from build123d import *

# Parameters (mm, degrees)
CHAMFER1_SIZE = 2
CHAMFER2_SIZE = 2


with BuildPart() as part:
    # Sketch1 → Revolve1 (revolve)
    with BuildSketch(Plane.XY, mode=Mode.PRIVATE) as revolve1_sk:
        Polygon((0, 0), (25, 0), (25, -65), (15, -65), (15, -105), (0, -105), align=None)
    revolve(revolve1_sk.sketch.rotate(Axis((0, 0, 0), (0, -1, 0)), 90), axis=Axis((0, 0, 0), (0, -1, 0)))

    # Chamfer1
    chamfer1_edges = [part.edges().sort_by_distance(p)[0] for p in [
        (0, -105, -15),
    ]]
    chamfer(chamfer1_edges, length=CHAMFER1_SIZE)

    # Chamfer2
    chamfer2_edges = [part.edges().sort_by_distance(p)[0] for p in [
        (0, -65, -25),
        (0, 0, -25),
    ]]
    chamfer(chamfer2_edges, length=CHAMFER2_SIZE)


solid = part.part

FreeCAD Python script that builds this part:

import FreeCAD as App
import Part
import Sketcher
from FreeCAD import Vector


def edges_at(feature, points):
    """Names of the edges that pass closest to the given points."""
    edges = feature.Shape.Edges
    near = lambda p: min(range(len(edges)), key=lambda i: edges[i].distToShape(Part.Vertex(*p))[0])
    return sorted({f"Edge{near(p) + 1}" for p in points})

doc = App.newDocument("Part")
params = doc.addObject("Spreadsheet::Sheet", "Params")
for row, (alias, value) in enumerate([
    ("sketch1_width", "25 mm"),
    ("sketch1_width2", "15 mm"),
    ("sketch1_height", "105 mm"),
    ("sketch1_height2", "40 mm"),
    ("revolution_angle", "360 deg"),
    ("chamfer_size", "2 mm"),
    ("chamfer2_size", "2 mm"),
], start=1):
    params.set(f"A{row}", alias)
    params.set(f"B{row}", "=" + value)
    params.setAlias(f"B{row}", alias)

body = doc.addObject("PartDesign::Body", "Body")

# Sketch on XY plane
sketch1 = body.newObject("Sketcher::SketchObject", "Sketch")
sketch1.AttachmentSupport = (doc.getObject("XY_Plane"), [""])
sketch1.MapMode = "FlatFace"
sketch1.addGeometry(Part.LineSegment(Vector(25, 0, 0), Vector(0, 0, 0)), False)
sketch1.addGeometry(Part.LineSegment(Vector(0, 0, 0), Vector(0, -105, 0)), False)
sketch1.addGeometry(Part.LineSegment(Vector(0, -105, 0), Vector(15, -105, 0)), False)
sketch1.addGeometry(Part.LineSegment(Vector(15, -105, 0), Vector(15, -65, 0)), False)
sketch1.addGeometry(Part.LineSegment(Vector(15, -65, 0), Vector(25, -65, 0)), False)
sketch1.addGeometry(Part.LineSegment(Vector(25, -65, 0), Vector(25, 0, 0)), False)
sketch1.addConstraint(Sketcher.Constraint("Coincident", 0, 2, 1, 1))
sketch1.addConstraint(Sketcher.Constraint("Coincident", 1, 2, 2, 1))
sketch1.addConstraint(Sketcher.Constraint("Coincident", 2, 2, 3, 1))
sketch1.addConstraint(Sketcher.Constraint("Coincident", 3, 2, 4, 1))
sketch1.addConstraint(Sketcher.Constraint("Coincident", 4, 2, 5, 1))
sketch1.addConstraint(Sketcher.Constraint("Coincident", 5, 2, 0, 1))
sketch1.addConstraint(Sketcher.Constraint("Horizontal", 0))
sketch1.addConstraint(Sketcher.Constraint("Vertical", 1))
sketch1.addConstraint(Sketcher.Constraint("Horizontal", 2))
sketch1.addConstraint(Sketcher.Constraint("Vertical", 3))
sketch1.addConstraint(Sketcher.Constraint("Horizontal", 4))
sketch1.addConstraint(Sketcher.Constraint("Vertical", 5))
sketch1.addConstraint(Sketcher.Constraint("Coincident", 0, 2, -1, 1))
sketch1.addConstraint(Sketcher.Constraint("DistanceX", 0, 2, 0, 1, 25.0))
sketch1.addConstraint(Sketcher.Constraint("DistanceX", 2, 1, 2, 2, 15.0))
sketch1.addConstraint(Sketcher.Constraint("DistanceY", 1, 2, 1, 1, 105.0))
sketch1.addConstraint(Sketcher.Constraint("DistanceY", 3, 1, 3, 2, 40.0))
sketch1.setExpression("Constraints[13]", "Params.sketch1_width")
sketch1.setExpression("Constraints[14]", "Params.sketch1_width2")
sketch1.setExpression("Constraints[15]", "Params.sketch1_height")
sketch1.setExpression("Constraints[16]", "Params.sketch1_height2")
revolution = body.newObject("PartDesign::Revolution", "Revolution")
revolution.Profile = sketch1
revolution.ReferenceAxis = (sketch1, ["V_Axis"])
revolution.setExpression("Angle", "Params.revolution_angle")
doc.recompute()

chamfer = body.newObject("PartDesign::Chamfer", "Chamfer")
chamfer.Base = (revolution, edges_at(revolution, [(0, -105, -15)]))
chamfer.setExpression("Size", "Params.chamfer_size")
doc.recompute()

chamfer2 = body.newObject("PartDesign::Chamfer", "Chamfer001")
chamfer2.Base = (chamfer, edges_at(chamfer, [(0, -65, -25), (0, 0, -25)]))
chamfer2.setExpression("Size", "Params.chamfer2_size")

doc.recompute()
